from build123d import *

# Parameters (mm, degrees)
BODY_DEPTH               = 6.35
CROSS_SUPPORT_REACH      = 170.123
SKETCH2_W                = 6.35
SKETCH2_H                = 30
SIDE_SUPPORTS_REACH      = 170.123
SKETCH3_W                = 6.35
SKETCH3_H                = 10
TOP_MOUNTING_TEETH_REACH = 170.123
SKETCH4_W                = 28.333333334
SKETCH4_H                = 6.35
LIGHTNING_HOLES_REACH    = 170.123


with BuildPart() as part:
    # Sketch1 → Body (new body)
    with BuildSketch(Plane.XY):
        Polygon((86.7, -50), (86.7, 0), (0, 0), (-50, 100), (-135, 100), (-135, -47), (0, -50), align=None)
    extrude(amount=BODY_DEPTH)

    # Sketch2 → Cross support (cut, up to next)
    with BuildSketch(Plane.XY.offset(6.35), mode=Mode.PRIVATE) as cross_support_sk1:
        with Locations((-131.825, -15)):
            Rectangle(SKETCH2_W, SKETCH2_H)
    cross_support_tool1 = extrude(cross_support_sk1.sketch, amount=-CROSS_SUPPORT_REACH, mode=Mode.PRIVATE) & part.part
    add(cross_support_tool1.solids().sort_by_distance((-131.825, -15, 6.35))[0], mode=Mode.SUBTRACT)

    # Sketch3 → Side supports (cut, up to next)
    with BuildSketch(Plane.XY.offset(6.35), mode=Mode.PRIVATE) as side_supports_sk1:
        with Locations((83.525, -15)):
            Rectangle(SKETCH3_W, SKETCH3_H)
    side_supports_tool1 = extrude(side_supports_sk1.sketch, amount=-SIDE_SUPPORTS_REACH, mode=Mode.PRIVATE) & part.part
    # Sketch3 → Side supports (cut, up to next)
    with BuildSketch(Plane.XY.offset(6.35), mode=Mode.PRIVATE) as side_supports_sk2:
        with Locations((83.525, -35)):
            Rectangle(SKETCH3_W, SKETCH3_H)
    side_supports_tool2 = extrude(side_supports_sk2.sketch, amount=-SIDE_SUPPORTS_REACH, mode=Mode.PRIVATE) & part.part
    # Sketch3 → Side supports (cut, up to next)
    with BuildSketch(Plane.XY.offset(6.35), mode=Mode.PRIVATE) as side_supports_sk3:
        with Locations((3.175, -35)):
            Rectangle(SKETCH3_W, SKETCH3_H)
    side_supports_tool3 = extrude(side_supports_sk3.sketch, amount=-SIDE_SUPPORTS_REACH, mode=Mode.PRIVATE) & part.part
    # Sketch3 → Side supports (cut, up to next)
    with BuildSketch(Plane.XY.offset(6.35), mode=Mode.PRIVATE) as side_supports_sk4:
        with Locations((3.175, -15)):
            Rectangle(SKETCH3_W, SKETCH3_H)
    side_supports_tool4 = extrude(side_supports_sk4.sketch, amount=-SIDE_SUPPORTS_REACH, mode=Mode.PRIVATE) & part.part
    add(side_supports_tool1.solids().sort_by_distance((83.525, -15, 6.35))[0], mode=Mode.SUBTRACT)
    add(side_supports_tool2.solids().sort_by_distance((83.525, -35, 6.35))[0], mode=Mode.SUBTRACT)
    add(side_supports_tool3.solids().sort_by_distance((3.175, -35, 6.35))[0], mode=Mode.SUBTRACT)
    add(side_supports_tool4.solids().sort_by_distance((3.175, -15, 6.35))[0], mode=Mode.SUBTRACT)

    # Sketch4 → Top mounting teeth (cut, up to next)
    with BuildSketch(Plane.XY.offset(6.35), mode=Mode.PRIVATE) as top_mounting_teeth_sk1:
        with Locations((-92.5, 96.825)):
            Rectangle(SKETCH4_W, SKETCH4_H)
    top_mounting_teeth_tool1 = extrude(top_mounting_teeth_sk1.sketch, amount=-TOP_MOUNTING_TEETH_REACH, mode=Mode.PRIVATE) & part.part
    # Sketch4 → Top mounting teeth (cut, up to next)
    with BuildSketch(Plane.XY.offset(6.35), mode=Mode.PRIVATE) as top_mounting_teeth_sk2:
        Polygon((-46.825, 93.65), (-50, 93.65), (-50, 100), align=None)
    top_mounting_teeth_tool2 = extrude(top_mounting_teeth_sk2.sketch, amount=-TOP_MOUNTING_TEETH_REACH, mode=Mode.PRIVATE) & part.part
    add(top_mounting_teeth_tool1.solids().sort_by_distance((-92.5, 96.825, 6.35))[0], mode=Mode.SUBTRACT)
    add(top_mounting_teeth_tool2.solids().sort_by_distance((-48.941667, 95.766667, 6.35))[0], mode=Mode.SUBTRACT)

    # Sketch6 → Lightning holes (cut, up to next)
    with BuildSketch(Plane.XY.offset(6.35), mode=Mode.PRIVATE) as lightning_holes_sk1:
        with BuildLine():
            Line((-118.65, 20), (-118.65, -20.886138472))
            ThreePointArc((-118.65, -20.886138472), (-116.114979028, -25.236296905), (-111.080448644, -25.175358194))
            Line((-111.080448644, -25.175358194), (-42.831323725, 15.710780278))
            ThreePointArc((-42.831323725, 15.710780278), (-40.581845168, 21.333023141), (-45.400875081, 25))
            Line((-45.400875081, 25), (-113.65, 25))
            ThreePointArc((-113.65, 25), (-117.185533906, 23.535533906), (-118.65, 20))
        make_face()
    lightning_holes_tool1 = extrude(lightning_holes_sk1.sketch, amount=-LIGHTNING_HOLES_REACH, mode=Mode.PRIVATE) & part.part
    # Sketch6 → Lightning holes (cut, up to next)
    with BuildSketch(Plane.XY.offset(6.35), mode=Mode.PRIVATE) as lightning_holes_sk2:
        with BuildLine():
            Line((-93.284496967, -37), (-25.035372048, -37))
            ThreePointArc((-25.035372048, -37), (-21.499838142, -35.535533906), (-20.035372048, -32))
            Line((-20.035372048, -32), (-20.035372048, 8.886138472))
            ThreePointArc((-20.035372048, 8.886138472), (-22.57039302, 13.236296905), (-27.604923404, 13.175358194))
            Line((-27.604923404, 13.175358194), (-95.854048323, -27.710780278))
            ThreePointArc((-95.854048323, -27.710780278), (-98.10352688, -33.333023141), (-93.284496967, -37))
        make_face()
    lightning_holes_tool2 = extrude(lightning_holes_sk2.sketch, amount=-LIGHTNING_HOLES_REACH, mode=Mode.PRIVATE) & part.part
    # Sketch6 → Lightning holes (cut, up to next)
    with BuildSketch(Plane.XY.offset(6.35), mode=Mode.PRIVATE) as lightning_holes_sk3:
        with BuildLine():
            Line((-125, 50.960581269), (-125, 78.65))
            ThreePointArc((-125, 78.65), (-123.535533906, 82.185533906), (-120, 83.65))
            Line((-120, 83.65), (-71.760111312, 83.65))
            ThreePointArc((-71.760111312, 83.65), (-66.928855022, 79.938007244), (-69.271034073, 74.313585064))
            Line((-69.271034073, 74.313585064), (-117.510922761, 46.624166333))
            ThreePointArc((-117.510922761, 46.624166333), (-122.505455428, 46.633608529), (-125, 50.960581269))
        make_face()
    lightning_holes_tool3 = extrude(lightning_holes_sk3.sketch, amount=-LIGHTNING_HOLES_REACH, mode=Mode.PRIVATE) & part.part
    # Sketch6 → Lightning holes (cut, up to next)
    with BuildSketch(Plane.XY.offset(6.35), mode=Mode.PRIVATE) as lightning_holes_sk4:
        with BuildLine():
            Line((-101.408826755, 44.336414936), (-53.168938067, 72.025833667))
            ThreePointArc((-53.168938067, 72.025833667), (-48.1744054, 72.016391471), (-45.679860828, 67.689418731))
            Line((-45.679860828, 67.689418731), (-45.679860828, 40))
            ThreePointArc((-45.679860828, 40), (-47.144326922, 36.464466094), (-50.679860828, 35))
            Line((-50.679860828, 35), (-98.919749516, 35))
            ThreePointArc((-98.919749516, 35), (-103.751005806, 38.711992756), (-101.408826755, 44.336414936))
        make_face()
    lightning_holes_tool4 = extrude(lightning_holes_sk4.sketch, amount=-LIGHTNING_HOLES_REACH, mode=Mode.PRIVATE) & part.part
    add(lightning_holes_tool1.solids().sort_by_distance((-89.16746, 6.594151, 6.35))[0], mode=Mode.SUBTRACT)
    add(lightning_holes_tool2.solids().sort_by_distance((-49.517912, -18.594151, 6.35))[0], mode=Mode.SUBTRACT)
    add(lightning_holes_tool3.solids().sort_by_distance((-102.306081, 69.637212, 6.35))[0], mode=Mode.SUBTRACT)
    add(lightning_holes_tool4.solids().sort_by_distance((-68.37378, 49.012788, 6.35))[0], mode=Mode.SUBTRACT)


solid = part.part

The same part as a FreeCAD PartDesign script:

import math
import FreeCAD as App
import Part
import Sketcher


def add_polygon(sketch, points):
    """Adds a closed chain of lines whose ends are joined by coincident constraints."""
    first, n = sketch.GeometryCount, len(points)
    for a, b in zip(points, points[1:] + points[:1]):
        sketch.addGeometry(Part.LineSegment(App.Vector(*a, 0), App.Vector(*b, 0)), False)
    for i in range(n):
        sketch.addConstraint(Sketcher.Constraint("Coincident", first + i, 2, first + (i + 1) % n, 1))

doc = App.newDocument("Part")
body = doc.addObject("PartDesign::Body", "Body")

# Sketch on XY plane
sketch1 = doc.addObject("Sketcher::SketchObject", "Sketch")
body.addObject(sketch1)
sketch1.AttachmentSupport = (doc.XY_Plane, [""])
sketch1.MapMode = "FlatFace"
add_polygon(sketch1, [(87, -50), (87, 0), (0, 0), (-50, 100), (-135, 100), (-135, -47), (0, -50)])  # lines 0-6
sketch1.addConstraint(Sketcher.Constraint("Vertical", 0))
sketch1.addConstraint(Sketcher.Constraint("Horizontal", 1))
sketch1.addConstraint(Sketcher.Constraint("Horizontal", 3))
sketch1.addConstraint(Sketcher.Constraint("Vertical", 4))
sketch1.addConstraint(Sketcher.Constraint("Horizontal", 6))
sketch1.addConstraint(Sketcher.Constraint("Coincident", 1, 2, -1, 1))
sketch1.addConstraint(Sketcher.Constraint("PointOnObject", 5, 2, -2))
sketch1.addConstraint(Sketcher.Constraint("DistanceX", 3, 2, 3, 1, 85.0))
sketch1.addConstraint(Sketcher.Constraint("DistanceY", 0, 1, 0, 2, 50.0))
sketch1.addConstraint(Sketcher.Constraint("DistanceY", 4, 2, 4, 1, 147.0))
sketch1.addConstraint(Sketcher.Constraint("DistanceX", 1, 2, 1, 1, 86.7))
sketch1.addConstraint(Sketcher.Constraint("DistanceX", 2, 2, -1, 1, 50.0))
sketch1.addConstraint(Sketcher.Constraint("DistanceY", -1, 1, 2, 2, 100.0))
pad1 = doc.addObject("PartDesign::Pad", "Pad")
body.addObject(pad1)
pad1.Profile = sketch1
pad1.Length = 6.35

# Sketch on XY plane
sketch2 = doc.addObject("Sketcher::SketchObject", "Sketch001")
body.addObject(sketch2)
sketch2.AttachmentSupport = (doc.XY_Plane, [""])
sketch2.MapMode = "FlatFace"
sketch2.AttachmentOffset = App.Placement(App.Vector(0, 0, 6.35), App.Rotation())
add_polygon(sketch2, [(-135, 0), (-135, -30), (-129, -30), (-129, 0)])  # lines 0-3
sketch2.addConstraint(Sketcher.Constraint("Vertical", 0))
sketch2.addConstraint(Sketcher.Constraint("Horizontal", 1))
sketch2.addConstraint(Sketcher.Constraint("Vertical", 2))
sketch2.addConstraint(Sketcher.Constraint("Horizontal", 3))
sketch2.addConstraint(Sketcher.Constraint("PointOnObject", 2, 2, -1))
sketch2.addConstraint(Sketcher.Constraint("DistanceY", 0, 2, 0, 1, 30.0))
sketch2.addConstraint(Sketcher.Constraint("DistanceX", 0, 2, -1, 1, 135.0))
sketch2.addConstraint(Sketcher.Constraint("DistanceX", 1, 1, 1, 2, 6.35))
pocket1 = doc.addObject("PartDesign::Pocket", "Pocket")
body.addObject(pocket1)
pocket1.Profile = sketch2
pocket1.Type = "UpToFirst"

# Sketch on XY plane
sketch3 = doc.addObject("Sketcher::SketchObject", "Sketch002")
body.addObject(sketch3)
sketch3.AttachmentSupport = (doc.XY_Plane, [""])
sketch3.MapMode = "FlatFace"
sketch3.AttachmentOffset = App.Placement(App.Vector(0, 0, 6.35), App.Rotation())
add_polygon(sketch3, [(80, -10), (80, -20), (87, -20), (87, -10)])  # lines 0-3
sketch3.addConstraint(Sketcher.Constraint("Vertical", 0))
sketch3.addConstraint(Sketcher.Constraint("Horizontal", 1))
sketch3.addConstraint(Sketcher.Constraint("Vertical", 2))
sketch3.addConstraint(Sketcher.Constraint("Horizontal", 3))
sketch3.addConstraint(Sketcher.Constraint("DistanceY", 0, 2, 0, 1, 10.0))
sketch3.addConstraint(Sketcher.Constraint("DistanceY", 0, 2, -1, 1, 20.0))
sketch3.addConstraint(Sketcher.Constraint("DistanceX", 1, 1, 1, 2, 6.35))
sketch3.addConstraint(Sketcher.Constraint("DistanceX", -1, 1, 1, 2, 86.7))
pocket2 = doc.addObject("PartDesign::Pocket", "Pocket001")
body.addObject(pocket2)
pocket2.Profile = sketch3
pocket2.Type = "UpToFirst"

# Sketch on XY plane
sketch4 = doc.addObject("Sketcher::SketchObject", "Sketch003")
body.addObject(sketch4)
sketch4.AttachmentSupport = (doc.XY_Plane, [""])
sketch4.MapMode = "FlatFace"
sketch4.AttachmentOffset = App.Placement(App.Vector(0, 0, 6.35), App.Rotation())
add_polygon(sketch4, [(80, -30), (80, -40), (87, -40), (87, -30)])  # lines 0-3
sketch4.addConstraint(Sketcher.Constraint("Vertical", 0))
sketch4.addConstraint(Sketcher.Constraint("Horizontal", 1))
sketch4.addConstraint(Sketcher.Constraint("Vertical", 2))
sketch4.addConstraint(Sketcher.Constraint("Horizontal", 3))
sketch4.addConstraint(Sketcher.Constraint("DistanceY", 0, 2, 0, 1, 10.0))
sketch4.addConstraint(Sketcher.Constraint("DistanceY", 0, 2, -1, 1, 40.0))
sketch4.addConstraint(Sketcher.Constraint("DistanceX", 1, 1, 1, 2, 6.35))
sketch4.addConstraint(Sketcher.Constraint("DistanceX", -1, 1, 1, 2, 86.7))
pocket3 = doc.addObject("PartDesign::Pocket", "Pocket002")
body.addObject(pocket3)
pocket3.Profile = sketch4
pocket3.Type = "UpToFirst"

# Sketch on XY plane
sketch5 = doc.addObject("Sketcher::SketchObject", "Sketch004")
body.addObject(sketch5)
sketch5.AttachmentSupport = (doc.XY_Plane, [""])
sketch5.MapMode = "FlatFace"
sketch5.AttachmentOffset = App.Placement(App.Vector(0, 0, 6.35), App.Rotation())
add_polygon(sketch5, [(0, -30), (0, -40), (6, -40), (6, -30)])  # lines 0-3
sketch5.addConstraint(Sketcher.Constraint("Vertical", 0))
sketch5.addConstraint(Sketcher.Constraint("Horizontal", 1))
sketch5.addConstraint(Sketcher.Constraint("Vertical", 2))
sketch5.addConstraint(Sketcher.Constraint("Horizontal", 3))
sketch5.addConstraint(Sketcher.Constraint("PointOnObject", 0, 2, -2))
sketch5.addConstraint(Sketcher.Constraint("DistanceY", 0, 2, 0, 1, 10.0))
sketch5.addConstraint(Sketcher.Constraint("DistanceY", 0, 2, -1, 1, 40.0))
sketch5.addConstraint(Sketcher.Constraint("DistanceX", 1, 1, 1, 2, 6.35))
pocket4 = doc.addObject("PartDesign::Pocket", "Pocket003")
body.addObject(pocket4)
pocket4.Profile = sketch5
pocket4.Type = "UpToFirst"

# Sketch on XY plane
sketch6 = doc.addObject("Sketcher::SketchObject", "Sketch005")
body.addObject(sketch6)
sketch6.AttachmentSupport = (doc.XY_Plane, [""])
sketch6.MapMode = "FlatFace"
sketch6.AttachmentOffset = App.Placement(App.Vector(0, 0, 6.35), App.Rotation())
add_polygon(sketch6, [(0, -10), (0, -20), (6, -20), (6, -10)])  # lines 0-3
sketch6.addConstraint(Sketcher.Constraint("Vertical", 0))
sketch6.addConstraint(Sketcher.Constraint("Horizontal", 1))
sketch6.addConstraint(Sketcher.Constraint("Vertical", 2))
sketch6.addConstraint(Sketcher.Constraint("Horizontal", 3))
sketch6.addConstraint(Sketcher.Constraint("PointOnObject", 0, 2, -2))
sketch6.addConstraint(Sketcher.Constraint("DistanceY", 0, 2, 0, 1, 10.0))
sketch6.addConstraint(Sketcher.Constraint("DistanceY", 0, 2, -1, 1, 20.0))
sketch6.addConstraint(Sketcher.Constraint("DistanceX", 1, 1, 1, 2, 6.35))
pocket5 = doc.addObject("PartDesign::Pocket", "Pocket004")
body.addObject(pocket5)
pocket5.Profile = sketch6
pocket5.Type = "UpToFirst"

# Sketch on XY plane
sketch7 = doc.addObject("Sketcher::SketchObject", "Sketch006")
body.addObject(sketch7)
sketch7.AttachmentSupport = (doc.XY_Plane, [""])
sketch7.MapMode = "FlatFace"
sketch7.AttachmentOffset = App.Placement(App.Vector(0, 0, 6.35), App.Rotation())
add_polygon(sketch7, [(-107, 100), (-107, 94), (-78, 94), (-78, 100)])  # lines 0-3
sketch7.addConstraint(Sketcher.Constraint("Vertical", 0))
sketch7.addConstraint(Sketcher.Constraint("Horizontal", 1))
sketch7.addConstraint(Sketcher.Constraint("Vertical", 2))
sketch7.addConstraint(Sketcher.Constraint("Horizontal", 3))
sketch7.addConstraint(Sketcher.Constraint("DistanceY", -1, 1, 2, 2, 100.0))
sketch7.addConstraint(Sketcher.Constraint("DistanceY", 0, 2, 0, 1, 6.35))
sketch7.addConstraint(Sketcher.Constraint("DistanceX", 1, 1, 1, 2, 28.333333))
sketch7.addConstraint(Sketcher.Constraint("DistanceX", 0, 2, -1, 1, 106.666667))
pocket6 = doc.addObject("PartDesign::Pocket", "Pocket005")
body.addObject(pocket6)
pocket6.Profile = sketch7
pocket6.Type = "UpToFirst"

# Sketch on XY plane
sketch8 = doc.addObject("Sketcher::SketchObject", "Sketch007")
body.addObject(sketch8)
sketch8.AttachmentSupport = (doc.XY_Plane, [""])
sketch8.MapMode = "FlatFace"
sketch8.AttachmentOffset = App.Placement(App.Vector(0, 0, 6.35), App.Rotation())
add_polygon(sketch8, [(-50, 93.7), (-46.8, 93.7), (-50, 100)])  # lines 0-2
sketch8.addConstraint(Sketcher.Constraint("Horizontal", 0))
sketch8.addConstraint(Sketcher.Constraint("Vertical", 2))
sketch8.addConstraint(Sketcher.Constraint("DistanceX", 1, 2, -1, 1, 50.0))
sketch8.addConstraint(Sketcher.Constraint("DistanceY", -1, 1, 1, 2, 100.0))
sketch8.addConstraint(Sketcher.Constraint("DistanceY", 2, 2, 2, 1, 6.35))
sketch8.addConstraint(Sketcher.Constraint("DistanceX", 0, 1, 0, 2, 3.175))
pocket7 = doc.addObject("PartDesign::Pocket", "Pocket006")
body.addObject(pocket7)
pocket7.Profile = sketch8
pocket7.Type = "UpToFirst"

# Sketch on XY plane
sketch9 = doc.addObject("Sketcher::SketchObject", "Sketch008")
body.addObject(sketch9)
sketch9.AttachmentSupport = (doc.XY_Plane, [""])
sketch9.MapMode = "FlatFace"
sketch9.AttachmentOffset = App.Placement(App.Vector(0, 0, 6.35), App.Rotation())
sketch9.addGeometry(Part.LineSegment(App.Vector(-118.7, 20, 0), App.Vector(-118.7, -20.9, 0)), False)
sketch9.addGeometry(Part.ArcOfCircle(Part.Circle(App.Vector(-113.7, -20.9, 0), App.Vector(0, 0, 1), 5), math.radians(180), math.radians(301)), False)
sketch9.addGeometry(Part.LineSegment(App.Vector(-111.1, -25.2, 0), App.Vector(-42.8, 15.7, 0)), False)
sketch9.addGeometry(Part.ArcOfCircle(Part.Circle(App.Vector(-45.4, 20, 0), App.Vector(0, 0, 1), 5), math.radians(-59), math.radians(90)), False)
sketch9.addGeometry(Part.LineSegment(App.Vector(-45.4, 25, 0), App.Vector(-113.7, 25, 0)), False)
sketch9.addGeometry(Part.ArcOfCircle(Part.Circle(App.Vector(-113.7, 20, 0), App.Vector(0, 0, 1), 5), math.radians(90), math.radians(180)), False)
sketch9.addConstraint(Sketcher.Constraint("Tangent", 0, 2, 1, 1))
sketch9.addConstraint(Sketcher.Constraint("Tangent", 1, 2, 2, 1))
sketch9.addConstraint(Sketcher.Constraint("Tangent", 2, 2, 3, 1))
sketch9.addConstraint(Sketcher.Constraint("Tangent", 3, 2, 4, 1))
sketch9.addConstraint(Sketcher.Constraint("Tangent", 4, 2, 5, 1))
sketch9.addConstraint(Sketcher.Constraint("Tangent", 5, 2, 0, 1))
sketch9.addConstraint(Sketcher.Constraint("Vertical", 0))
sketch9.addConstraint(Sketcher.Constraint("Horizontal", 4))
sketch9.addConstraint(Sketcher.Constraint("Equal", 1, 3))
sketch9.addConstraint(Sketcher.Constraint("Equal", 3, 5))
sketch9.addConstraint(Sketcher.Constraint("Radius", 1, 5.0))
sketch9.addConstraint(Sketcher.Constraint("DistanceY", -1, 1, 3, 3, 20.0))
sketch9.addConstraint(Sketcher.Constraint("DistanceX", 1, 3, -1, 1, 113.65))
sketch9.addConstraint(Sketcher.Constraint("DistanceY", 0, 2, 0, 1, 40.886138))
sketch9.addConstraint(Sketcher.Constraint("DistanceX", 4, 2, 4, 1, 68.249125))
pocket8 = doc.addObject("PartDesign::Pocket", "Pocket007")
body.addObject(pocket8)
pocket8.Profile = sketch9
pocket8.Type = "UpToFirst"

# Sketch on XY plane
sketch10 = doc.addObject("Sketcher::SketchObject", "Sketch009")
body.addObject(sketch10)
sketch10.AttachmentSupport = (doc.XY_Plane, [""])
sketch10.MapMode = "FlatFace"
sketch10.AttachmentOffset = App.Placement(App.Vector(0, 0, 6.35), App.Rotation())
sketch10.addGeometry(Part.LineSegment(App.Vector(-93.3, -37, 0), App.Vector(-25, -37, 0)), False)
sketch10.addGeometry(Part.ArcOfCircle(Part.Circle(App.Vector(-25, -32, 0), App.Vector(0, 0, 1), 5), math.radians(-90), math.radians(0)), False)
sketch10.addGeometry(Part.LineSegment(App.Vector(-20, -32, 0), App.Vector(-20, 8.9, 0)), False)
sketch10.addGeometry(Part.ArcOfCircle(Part.Circle(App.Vector(-25, 8.9, 0), App.Vector(0, 0, 1), 5), math.radians(0), math.radians(121)), False)
sketch10.addGeometry(Part.LineSegment(App.Vector(-27.6, 13.2, 0), App.Vector(-95.9, -27.7, 0)), False)
sketch10.addGeometry(Part.ArcOfCircle(Part.Circle(App.Vector(-93.3, -32, 0), App.Vector(0, 0, 1), 5), math.radians(121), math.radians(270)), False)
sketch10.addConstraint(Sketcher.Constraint("Tangent", 0, 2, 1, 1))
sketch10.addConstraint(Sketcher.Constraint("Tangent", 1, 2, 2, 1))
sketch10.addConstraint(Sketcher.Constraint("Tangent", 2, 2, 3, 1))
sketch10.addConstraint(Sketcher.Constraint("Tangent", 3, 2, 4, 1))
sketch10.addConstraint(Sketcher.Constraint("Tangent", 4, 2, 5, 1))
sketch10.addConstraint(Sketcher.Constraint("Tangent", 5, 2, 0, 1))
sketch10.addConstraint(Sketcher.Constraint("Horizontal", 0))
sketch10.addConstraint(Sketcher.Constraint("Vertical", 2))
sketch10.addConstraint(Sketcher.Constraint("Equal", 1, 3))
sketch10.addConstraint(Sketcher.Constraint("Equal", 3, 5))
sketch10.addConstraint(Sketcher.Constraint("Radius", 1, 5.0))
sketch10.addConstraint(Sketcher.Constraint("DistanceY", 1, 3, -1, 1, 32.0))
sketch10.addConstraint(Sketcher.Constraint("DistanceY", 2, 1, 2, 2, 40.886138))
sketch10.addConstraint(Sketcher.Constraint("DistanceX", 0, 1, 0, 2, 68.249125))
sketch10.addConstraint(Sketcher.Constraint("DistanceX", 4, 2, -1, 1, 95.854048))
pocket9 = doc.addObject("PartDesign::Pocket", "Pocket008")
body.addObject(pocket9)
pocket9.Profile = sketch10
pocket9.Type = "UpToFirst"

# Sketch on XY plane
sketch11 = doc.addObject("Sketcher::SketchObject", "Sketch010")
body.addObject(sketch11)
sketch11.AttachmentSupport = (doc.XY_Plane, [""])
sketch11.MapMode = "FlatFace"
sketch11.AttachmentOffset = App.Placement(App.Vector(0, 0, 6.35), App.Rotation())
sketch11.addGeometry(Part.LineSegment(App.Vector(-125, 79, 0), App.Vector(-125, 51, 0)), False)
sketch11.addGeometry(Part.ArcOfCircle(Part.Circle(App.Vector(-120, 51, 0), App.Vector(0, 0, 1), 5), math.radians(-180), math.radians(-60)), False)
sketch11.addGeometry(Part.LineSegment(App.Vector(-118, 47, 0), App.Vector(-69, 74, 0)), False)
sketch11.addGeometry(Part.ArcOfCircle(Part.Circle(App.Vector(-72, 79, 0), App.Vector(0, 0, 1), 5), math.radians(-60), math.radians(90)), False)
sketch11.addGeometry(Part.LineSegment(App.Vector(-72, 84, 0), App.Vector(-120, 84, 0)), False)
sketch11.addGeometry(Part.ArcOfCircle(Part.Circle(App.Vector(-120, 79, 0), App.Vector(0, 0, 1), 5), math.radians(90), math.radians(180)), False)
sketch11.addConstraint(Sketcher.Constraint("Tangent", 0, 2, 1, 1))
sketch11.addConstraint(Sketcher.Constraint("Tangent", 1, 2, 2, 1))
sketch11.addConstraint(Sketcher.Constraint("Tangent", 2, 2, 3, 1))
sketch11.addConstraint(Sketcher.Constraint("Tangent", 3, 2, 4, 1))
sketch11.addConstraint(Sketcher.Constraint("Tangent", 4, 2, 5, 1))
sketch11.addConstraint(Sketcher.Constraint("Tangent", 5, 2, 0, 1))
sketch11.addConstraint(Sketcher.Constraint("Vertical", 0))
sketch11.addConstraint(Sketcher.Constraint("Horizontal", 4))
sketch11.addConstraint(Sketcher.Constraint("Equal", 1, 3))
sketch11.addConstraint(Sketcher.Constraint("Equal", 3, 5))
sketch11.addConstraint(Sketcher.Constraint("Radius", 1, 5.0))
sketch11.addConstraint(Sketcher.Constraint("DistanceX", 1, 3, -1, 1, 120.0))
sketch11.addConstraint(Sketcher.Constraint("DistanceY", -1, 1, 3, 3, 78.65))
sketch11.addConstraint(Sketcher.Constraint("DistanceX", 4, 2, 4, 1, 48.239889))
sketch11.addConstraint(Sketcher.Constraint("DistanceY", 0, 2, 0, 1, 27.689419))
pocket10 = doc.addObject("PartDesign::Pocket", "Pocket009")
body.addObject(pocket10)
pocket10.Profile = sketch11
pocket10.Type = "UpToFirst"

# Sketch on XY plane
sketch12 = doc.addObject("Sketcher::SketchObject", "Sketch011")
body.addObject(sketch12)
sketch12.AttachmentSupport = (doc.XY_Plane, [""])
sketch12.MapMode = "FlatFace"
sketch12.AttachmentOffset = App.Placement(App.Vector(0, 0, 6.35), App.Rotation())
sketch12.addGeometry(Part.LineSegment(App.Vector(-53, 72, 0), App.Vector(-101, 44, 0)), False)
sketch12.addGeometry(Part.ArcOfCircle(Part.Circle(App.Vector(-99, 40, 0), App.Vector(0, 0, 1), 5), math.radians(120), math.radians(270)), False)
sketch12.addGeometry(Part.LineSegment(App.Vector(-99, 35, 0), App.Vector(-51, 35, 0)), False)
sketch12.addGeometry(Part.ArcOfCircle(Part.Circle(App.Vector(-51, 40, 0), App.Vector(0, 0, 1), 5), math.radians(-90), math.radians(0)), False)
sketch12.addGeometry(Part.LineSegment(App.Vector(-46, 40, 0), App.Vector(-46, 68, 0)), False)
sketch12.addGeometry(Part.ArcOfCircle(Part.Circle(App.Vector(-51, 68, 0), App.Vector(0, 0, 1), 5), math.radians(0), math.radians(120)), False)
sketch12.addConstraint(Sketcher.Constraint("Tangent", 0, 2, 1, 1))
sketch12.addConstraint(Sketcher.Constraint("Tangent", 1, 2, 2, 1))
sketch12.addConstraint(Sketcher.Constraint("Tangent", 2, 2, 3, 1))
sketch12.addConstraint(Sketcher.Constraint("Tangent", 3, 2, 4, 1))
sketch12.addConstraint(Sketcher.Constraint("Tangent", 4, 2, 5, 1))
sketch12.addConstraint(Sketcher.Constraint("Tangent", 5, 2, 0, 1))
sketch12.addConstraint(Sketcher.Constraint("Horizontal", 2))
sketch12.addConstraint(Sketcher.Constraint("Vertical", 4))
sketch12.addConstraint(Sketcher.Constraint("Equal", 1, 3))
sketch12.addConstraint(Sketcher.Constraint("Equal", 3, 5))
sketch12.addConstraint(Sketcher.Constraint("Radius", 1, 5.0))
sketch12.addConstraint(Sketcher.Constraint("DistanceY", -1, 1, 1, 3, 40.0))
sketch12.addConstraint(Sketcher.Constraint("DistanceX", 2, 1, 2, 2, 48.239889))
sketch12.addConstraint(Sketcher.Constraint("DistanceY", 4, 1, 4, 2, 27.689419))
sketch12.addConstraint(Sketcher.Constraint("DistanceX", 1, 3, -1, 1, 98.91975))
pocket11 = doc.addObject("PartDesign::Pocket", "Pocket010")
body.addObject(pocket11)
pocket11.Profile = sketch12
pocket11.Type = "UpToFirst"

doc.recompute()
